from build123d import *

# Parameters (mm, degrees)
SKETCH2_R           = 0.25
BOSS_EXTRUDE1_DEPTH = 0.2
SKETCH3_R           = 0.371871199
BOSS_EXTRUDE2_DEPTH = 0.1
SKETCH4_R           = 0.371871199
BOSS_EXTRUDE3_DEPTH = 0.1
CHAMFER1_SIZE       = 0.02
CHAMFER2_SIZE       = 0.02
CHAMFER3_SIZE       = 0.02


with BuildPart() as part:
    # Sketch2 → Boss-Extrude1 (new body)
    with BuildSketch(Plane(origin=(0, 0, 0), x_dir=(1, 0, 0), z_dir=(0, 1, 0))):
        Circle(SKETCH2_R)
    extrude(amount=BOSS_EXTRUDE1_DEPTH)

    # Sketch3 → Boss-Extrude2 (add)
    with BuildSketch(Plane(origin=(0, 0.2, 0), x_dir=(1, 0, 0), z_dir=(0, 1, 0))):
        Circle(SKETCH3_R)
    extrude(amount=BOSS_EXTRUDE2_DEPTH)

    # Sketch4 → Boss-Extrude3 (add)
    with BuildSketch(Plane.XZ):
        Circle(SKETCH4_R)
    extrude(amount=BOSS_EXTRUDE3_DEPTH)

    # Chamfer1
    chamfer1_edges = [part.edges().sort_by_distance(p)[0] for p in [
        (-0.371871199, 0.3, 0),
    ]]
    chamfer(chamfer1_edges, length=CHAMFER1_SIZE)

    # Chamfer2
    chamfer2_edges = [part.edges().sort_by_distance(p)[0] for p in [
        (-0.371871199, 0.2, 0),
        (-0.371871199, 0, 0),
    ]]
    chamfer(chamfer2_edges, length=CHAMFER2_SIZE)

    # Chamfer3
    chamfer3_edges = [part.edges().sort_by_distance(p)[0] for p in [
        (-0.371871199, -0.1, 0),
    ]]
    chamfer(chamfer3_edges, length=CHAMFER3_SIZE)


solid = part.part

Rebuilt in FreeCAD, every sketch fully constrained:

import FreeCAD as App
import Part
import Sketcher
from FreeCAD import Vector


def edges_at(feature, points):
    """Names of the edges that pass closest to the given points."""
    edges = feature.Shape.Edges
    near = lambda p: min(range(len(edges)), key=lambda i: edges[i].distToShape(Part.Vertex(*p))[0])
    return sorted({f"Edge{near(p) + 1}" for p in points})

doc = App.newDocument("Part")
params = doc.addObject("Spreadsheet::Sheet", "Params")
for row, (alias, value) in enumerate([
    ("sketch1_diameter", "0.5 mm"),
    ("pad1_length", "0.2 mm"),
    ("pad2_length", "0.1 mm"),
    ("pad3_length", "0.1 mm"),
    ("chamfer_size", "0.02 mm"),
    ("chamfer2_size", "0.02 mm"),
    ("chamfer3_size", "0.02 mm"),
], start=1):
    params.set(f"A{row}", alias)
    params.set(f"B{row}", "=" + value)
    params.setAlias(f"B{row}", alias)

body = doc.addObject("PartDesign::Body", "Body")

# Sketch on XZ plane
sketch1 = body.newObject("Sketcher::SketchObject", "Sketch")
sketch1.AttachmentSupport = (doc.getObject("XZ_Plane"), [""])
sketch1.MapMode = "FlatFace"
sketch1.addGeometry(Part.Circle(Vector(0, 0, 0), Vector(0, 0, 1), 0.25), False)
sketch1.addConstraint(Sketcher.Constraint("Coincident", 0, 3, -1, 1))
sketch1.addConstraint(Sketcher.Constraint("Diameter", 0, 0.5))
sketch1.setExpression("Constraints[1]", "Params.sketch1_diameter")
pad1 = body.newObject("PartDesign::Pad", "Pad")
pad1.Profile = sketch1
pad1.setExpression("Length", "Params.pad1_length")
pad1.Reversed = True

# Sketch on XZ plane
sketch2 = body.newObject("Sketcher::SketchObject", "Sketch001")
sketch2.AttachmentSupport = (doc.getObject("XZ_Plane"), [""])
sketch2.MapMode = "FlatFace"
sketch2.AttachmentOffset = App.Placement(Vector(0, 0, -0.2), App.Rotation())
sketch2.addGeometry(Part.Circle(Vector(0, 0, 0), Vector(0, 0, 1), 0.37), False)
sketch2.addConstraint(Sketcher.Constraint("Coincident", 0, 3, -1, 1))
sketch2.addConstraint(Sketcher.Constraint("Diameter", 0, 0.743742))
pad2 = body.newObject("PartDesign::Pad", "Pad001")
pad2.Profile = sketch2
pad2.setExpression("Length", "Params.pad2_length")
pad2.Reversed = True

# Sketch on XZ plane
sketch3 = body.newObject("Sketcher::SketchObject", "Sketch002")
sketch3.AttachmentSupport = (doc.getObject("XZ_Plane"), [""])
sketch3.MapMode = "FlatFace"
sketch3.addGeometry(Part.Circle(Vector(0, 0, 0), Vector(0, 0, 1), 0.37), False)
sketch3.addConstraint(Sketcher.Constraint("Coincident", 0, 3, -1, 1))
sketch3.addConstraint(Sketcher.Constraint("Diameter", 0, 0.743742))
pad3 = body.newObject("PartDesign::Pad", "Pad002")
pad3.Profile = sketch3
pad3.setExpression("Length", "Params.pad3_length")
doc.recompute()

chamfer = body.newObject("PartDesign::Chamfer", "Chamfer")
chamfer.Base = (pad3, edges_at(pad3, [(-0.372, 0.3, 0)]))
chamfer.setExpression("Size", "Params.chamfer_size")
doc.recompute()

chamfer2 = body.newObject("PartDesign::Chamfer", "Chamfer001")
chamfer2.Base = (chamfer, edges_at(chamfer, [(-0.372, 0.2, 0), (-0.372, 0, 0)]))
chamfer2.setExpression("Size", "Params.chamfer2_size")
doc.recompute()

chamfer3 = body.newObject("PartDesign::Chamfer", "Chamfer002")
chamfer3.Base = (chamfer2, edges_at(chamfer2, [(-0.372, -0.1, 0)]))
chamfer3.setExpression("Size", "Params.chamfer3_size")

doc.recompute()
